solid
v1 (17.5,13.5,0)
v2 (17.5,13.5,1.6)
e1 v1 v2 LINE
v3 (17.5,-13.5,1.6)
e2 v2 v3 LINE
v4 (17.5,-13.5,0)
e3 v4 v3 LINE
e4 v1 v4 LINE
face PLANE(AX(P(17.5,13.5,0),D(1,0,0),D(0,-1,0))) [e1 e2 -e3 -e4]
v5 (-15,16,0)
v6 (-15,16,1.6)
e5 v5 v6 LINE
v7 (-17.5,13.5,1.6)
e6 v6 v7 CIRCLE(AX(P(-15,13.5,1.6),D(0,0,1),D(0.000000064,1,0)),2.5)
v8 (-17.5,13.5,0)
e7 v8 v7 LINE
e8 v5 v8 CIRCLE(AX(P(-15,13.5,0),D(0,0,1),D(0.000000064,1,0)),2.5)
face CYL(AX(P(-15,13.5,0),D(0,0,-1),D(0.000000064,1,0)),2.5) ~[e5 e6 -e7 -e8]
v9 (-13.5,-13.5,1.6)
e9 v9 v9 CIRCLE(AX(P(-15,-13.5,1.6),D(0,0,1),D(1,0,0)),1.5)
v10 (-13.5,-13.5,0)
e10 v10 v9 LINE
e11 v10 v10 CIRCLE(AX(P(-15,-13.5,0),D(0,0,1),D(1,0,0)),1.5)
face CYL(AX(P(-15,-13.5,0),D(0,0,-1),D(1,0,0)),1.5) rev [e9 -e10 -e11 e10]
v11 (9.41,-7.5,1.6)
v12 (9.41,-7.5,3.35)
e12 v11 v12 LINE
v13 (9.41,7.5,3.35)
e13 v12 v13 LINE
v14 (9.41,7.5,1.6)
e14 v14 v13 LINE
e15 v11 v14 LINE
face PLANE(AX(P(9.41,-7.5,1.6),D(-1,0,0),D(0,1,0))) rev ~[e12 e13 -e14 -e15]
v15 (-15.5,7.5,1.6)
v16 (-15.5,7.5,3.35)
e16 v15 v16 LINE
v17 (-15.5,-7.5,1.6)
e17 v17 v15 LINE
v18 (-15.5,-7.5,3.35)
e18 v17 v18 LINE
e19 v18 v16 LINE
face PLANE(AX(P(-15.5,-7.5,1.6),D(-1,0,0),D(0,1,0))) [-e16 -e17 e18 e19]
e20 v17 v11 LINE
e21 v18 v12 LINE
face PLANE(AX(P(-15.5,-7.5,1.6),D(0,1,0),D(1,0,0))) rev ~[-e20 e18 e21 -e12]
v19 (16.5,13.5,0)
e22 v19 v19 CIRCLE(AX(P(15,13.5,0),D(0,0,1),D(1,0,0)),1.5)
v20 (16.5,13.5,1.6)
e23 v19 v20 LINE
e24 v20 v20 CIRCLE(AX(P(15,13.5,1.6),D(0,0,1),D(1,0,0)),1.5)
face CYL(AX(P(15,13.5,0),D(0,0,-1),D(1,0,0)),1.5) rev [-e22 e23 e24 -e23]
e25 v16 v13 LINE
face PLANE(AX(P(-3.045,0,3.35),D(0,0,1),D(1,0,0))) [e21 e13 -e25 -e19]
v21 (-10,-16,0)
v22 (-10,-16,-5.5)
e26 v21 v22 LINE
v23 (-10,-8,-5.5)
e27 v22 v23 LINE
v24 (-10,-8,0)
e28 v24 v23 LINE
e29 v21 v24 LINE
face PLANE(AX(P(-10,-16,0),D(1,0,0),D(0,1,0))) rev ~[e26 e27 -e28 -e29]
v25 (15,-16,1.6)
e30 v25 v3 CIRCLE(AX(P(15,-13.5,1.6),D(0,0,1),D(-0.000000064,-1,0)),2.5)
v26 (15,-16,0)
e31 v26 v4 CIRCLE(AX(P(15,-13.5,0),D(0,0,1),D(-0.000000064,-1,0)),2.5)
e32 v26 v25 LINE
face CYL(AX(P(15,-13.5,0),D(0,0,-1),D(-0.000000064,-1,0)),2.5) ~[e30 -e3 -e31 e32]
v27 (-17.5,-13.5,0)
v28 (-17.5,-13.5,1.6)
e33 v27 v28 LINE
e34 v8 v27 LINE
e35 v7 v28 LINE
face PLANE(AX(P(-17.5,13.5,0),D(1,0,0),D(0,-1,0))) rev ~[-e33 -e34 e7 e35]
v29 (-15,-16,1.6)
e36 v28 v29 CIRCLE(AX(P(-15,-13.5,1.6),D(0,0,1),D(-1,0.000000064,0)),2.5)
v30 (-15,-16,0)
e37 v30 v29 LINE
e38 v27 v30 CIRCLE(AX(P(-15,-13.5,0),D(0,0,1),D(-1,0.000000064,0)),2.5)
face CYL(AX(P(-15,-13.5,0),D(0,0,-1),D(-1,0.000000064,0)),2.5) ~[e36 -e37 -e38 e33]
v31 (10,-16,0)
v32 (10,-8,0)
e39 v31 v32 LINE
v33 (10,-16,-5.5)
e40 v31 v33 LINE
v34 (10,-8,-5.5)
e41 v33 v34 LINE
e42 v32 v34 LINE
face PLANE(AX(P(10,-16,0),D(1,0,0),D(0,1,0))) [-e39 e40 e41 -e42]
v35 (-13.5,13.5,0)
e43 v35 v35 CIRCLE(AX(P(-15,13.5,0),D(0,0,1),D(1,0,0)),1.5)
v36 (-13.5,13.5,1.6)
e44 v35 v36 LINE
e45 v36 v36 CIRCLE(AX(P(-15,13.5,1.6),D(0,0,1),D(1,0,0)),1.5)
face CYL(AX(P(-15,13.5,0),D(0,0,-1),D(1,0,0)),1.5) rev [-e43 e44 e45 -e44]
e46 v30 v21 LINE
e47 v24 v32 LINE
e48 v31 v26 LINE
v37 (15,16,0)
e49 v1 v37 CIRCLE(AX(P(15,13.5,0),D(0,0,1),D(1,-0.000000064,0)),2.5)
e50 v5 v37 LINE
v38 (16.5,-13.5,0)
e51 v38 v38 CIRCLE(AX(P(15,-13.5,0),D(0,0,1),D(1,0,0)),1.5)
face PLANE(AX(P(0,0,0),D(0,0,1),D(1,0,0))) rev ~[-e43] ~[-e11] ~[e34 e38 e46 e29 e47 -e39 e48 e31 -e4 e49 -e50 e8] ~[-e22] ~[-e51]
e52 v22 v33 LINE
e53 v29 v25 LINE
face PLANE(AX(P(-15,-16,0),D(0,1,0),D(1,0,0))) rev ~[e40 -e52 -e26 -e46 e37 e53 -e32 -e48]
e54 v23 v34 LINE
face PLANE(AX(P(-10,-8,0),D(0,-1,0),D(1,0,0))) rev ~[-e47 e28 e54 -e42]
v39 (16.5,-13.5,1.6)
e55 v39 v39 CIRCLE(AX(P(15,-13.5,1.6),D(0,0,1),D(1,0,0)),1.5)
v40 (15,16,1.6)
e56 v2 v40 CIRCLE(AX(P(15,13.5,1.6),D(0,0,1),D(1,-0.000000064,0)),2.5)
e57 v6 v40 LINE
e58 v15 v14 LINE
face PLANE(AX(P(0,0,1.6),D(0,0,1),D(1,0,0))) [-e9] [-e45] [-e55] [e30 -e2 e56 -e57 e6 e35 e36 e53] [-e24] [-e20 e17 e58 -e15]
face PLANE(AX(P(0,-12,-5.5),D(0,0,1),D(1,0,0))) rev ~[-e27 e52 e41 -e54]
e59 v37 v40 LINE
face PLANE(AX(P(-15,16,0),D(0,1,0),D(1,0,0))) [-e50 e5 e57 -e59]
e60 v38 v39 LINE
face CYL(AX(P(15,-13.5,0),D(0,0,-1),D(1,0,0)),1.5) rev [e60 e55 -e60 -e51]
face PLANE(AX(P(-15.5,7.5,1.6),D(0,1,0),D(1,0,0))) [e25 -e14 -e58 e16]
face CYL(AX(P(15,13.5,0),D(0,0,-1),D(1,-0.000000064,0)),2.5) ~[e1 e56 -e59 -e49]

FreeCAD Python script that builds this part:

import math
import FreeCAD as App
import Part
import Sketcher

doc = App.newDocument("Part")
body = doc.addObject("PartDesign::Body", "Body")

# Sketch on XY plane
sketch1 = body.newObject("Sketcher::SketchObject", "Sketch")
sketch1.AttachmentSupport = (doc.getObject("XY_Plane"), [""])
sketch1.MapMode = "FlatFace"
sketch1.addGeometry([
    Part.ArcOfCircle(Part.Circle(App.Vector(-15, 13.5, 0), App.Vector(0, 0, 1), 2.5), math.radians(90), math.radians(180)),  # 0
    Part.LineSegment(App.Vector(-17.5, 13.5, 0), App.Vector(-17.5, -13.5, 0)),  # 1
    Part.ArcOfCircle(Part.Circle(App.Vector(-15, -13.5, 0), App.Vector(0, 0, 1), 2.5), math.radians(180), math.radians(270)),  # 2
    Part.LineSegment(App.Vector(-15, -16, 0), App.Vector(15, -16, 0)),  # 3
    Part.ArcOfCircle(Part.Circle(App.Vector(15, -13.5, 0), App.Vector(0, 0, 1), 2.5), math.radians(-90), math.radians(0)),  # 4
    Part.LineSegment(App.Vector(17.5, -13.5, 0), App.Vector(17.5, 13.5, 0)),  # 5
    Part.ArcOfCircle(Part.Circle(App.Vector(15, 13.5, 0), App.Vector(0, 0, 1), 2.5), math.radians(0), math.radians(90)),  # 6
    Part.LineSegment(App.Vector(15, 16, 0), App.Vector(-15, 16, 0)),  # 7
    Part.Circle(App.Vector(-15, -13.5, 0), App.Vector(0, 0, 1), 1.5),  # 8
    Part.Circle(App.Vector(15, -13.5, 0), App.Vector(0, 0, 1), 1.5),  # 9
    Part.Circle(App.Vector(-15, 13.5, 0), App.Vector(0, 0, 1), 1.5),  # 10
    Part.Circle(App.Vector(15, 13.5, 0), App.Vector(0, 0, 1), 1.5),  # 11
], False)
sketch1.addConstraint([
    Sketcher.Constraint("Tangent", 0, 2, 1, 1),
    Sketcher.Constraint("Tangent", 1, 2, 2, 1),
    Sketcher.Constraint("Tangent", 2, 2, 3, 1),
    Sketcher.Constraint("Tangent", 3, 2, 4, 1),
    Sketcher.Constraint("Tangent", 4, 2, 5, 1),
    Sketcher.Constraint("Tangent", 5, 2, 6, 1),
    Sketcher.Constraint("Tangent", 6, 2, 7, 1),
    Sketcher.Constraint("Tangent", 7, 2, 0, 1),
    Sketcher.Constraint("Vertical", 1),
    Sketcher.Constraint("Horizontal", 3),
    Sketcher.Constraint("Vertical", 5),
    Sketcher.Constraint("Horizontal", 7),
    Sketcher.Constraint("Coincident", 8, 3, 2, 3),
    Sketcher.Constraint("Coincident", 9, 3, 4, 3),
    Sketcher.Constraint("Coincident", 10, 3, 0, 3),
    Sketcher.Constraint("Coincident", 11, 3, 6, 3),
    Sketcher.Constraint("Equal", 0, 2),
    Sketcher.Constraint("Equal", 2, 4),
    Sketcher.Constraint("Equal", 4, 6),
    Sketcher.Constraint("Equal", 8, 9),
    Sketcher.Constraint("Equal", 9, 10),
    Sketcher.Constraint("Equal", 10, 11),
    Sketcher.Constraint("Symmetric", 0, 3, 4, 3, -1, 1),
    Sketcher.Constraint("Diameter", 8, 3.0),
    Sketcher.Constraint("Radius", 0, 2.5),
    Sketcher.Constraint("DistanceX", 3, 1, 3, 2, 30.0),
    Sketcher.Constraint("DistanceY", 1, 2, 1, 1, 27.0),
])
pad1 = body.newObject("PartDesign::Pad", "Pad")
pad1.Profile = sketch1
pad1.Length = 1.6

# Sketch on XY plane
sketch2 = body.newObject("Sketcher::SketchObject", "Sketch001")
sketch2.AttachmentSupport = (doc.getObject("XY_Plane"), [""])
sketch2.MapMode = "FlatFace"
sketch2.AttachmentOffset = App.Placement(App.Vector(0, 0, 1.6), App.Rotation())
sketch2.addGeometry([
    Part.LineSegment(App.Vector(-16, 8, 0), App.Vector(-16, -8, 0)),
    Part.LineSegment(App.Vector(-16, -8, 0), App.Vector(9, -8, 0)),
    Part.LineSegment(App.Vector(9, -8, 0), App.Vector(9, 8, 0)),
    Part.LineSegment(App.Vector(9, 8, 0), App.Vector(-16, 8, 0)),
], False)
sketch2.addConstraint([
    Sketcher.Constraint("Coincident", 0, 2, 1, 1),
    Sketcher.Constraint("Coincident", 1, 2, 2, 1),
    Sketcher.Constraint("Coincident", 2, 2, 3, 1),
    Sketcher.Constraint("Coincident", 3, 2, 0, 1),
    Sketcher.Constraint("Vertical", 0),
    Sketcher.Constraint("Horizontal", 1),
    Sketcher.Constraint("Vertical", 2),
    Sketcher.Constraint("Horizontal", 3),
    Sketcher.Constraint("DistanceY", 0, 2, 0, 1, 15.0),
    Sketcher.Constraint("DistanceX", 1, 1, 1, 2, 24.91),
    Sketcher.Constraint("DistanceX", 0, 2, -1, 1, 15.5),
    Sketcher.Constraint("DistanceY", 0, 2, -1, 1, 7.5),
])
pad2 = body.newObject("PartDesign::Pad", "Pad001")
pad2.Profile = sketch2
pad2.Length = 1.75

# Sketch on XY plane
sketch3 = body.newObject("Sketcher::SketchObject", "Sketch002")
sketch3.AttachmentSupport = (doc.getObject("XY_Plane"), [""])
sketch3.MapMode = "FlatFace"
sketch3.addGeometry([
    Part.LineSegment(App.Vector(-10, -8, 0), App.Vector(-10, -16, 0)),
    Part.LineSegment(App.Vector(-10, -16, 0), App.Vector(10, -16, 0)),
    Part.LineSegment(App.Vector(10, -16, 0), App.Vector(10, -8, 0)),
    Part.LineSegment(App.Vector(10, -8, 0), App.Vector(-10, -8, 0)),
], False)
sketch3.addConstraint([
    Sketcher.Constraint("Coincident", 0, 2, 1, 1),
    Sketcher.Constraint("Coincident", 1, 2, 2, 1),
    Sketcher.Constraint("Coincident", 2, 2, 3, 1),
    Sketcher.Constraint("Coincident", 3, 2, 0, 1),
    Sketcher.Constraint("Vertical", 0),
    Sketcher.Constraint("Horizontal", 1),
    Sketcher.Constraint("Vertical", 2),
    Sketcher.Constraint("Horizontal", 3),
    Sketcher.Constraint("DistanceX", 1, 1, 1, 2, 20.0),
    Sketcher.Constraint("DistanceY", 0, 2, 0, 1, 8.0),
    Sketcher.Constraint("DistanceX", 0, 2, -1, 1, 10.0),
    Sketcher.Constraint("DistanceY", 0, 2, -1, 1, 16.0),
])
pad3 = body.newObject("PartDesign::Pad", "Pad002")
pad3.Profile = sketch3
pad3.Length = 5.5
pad3.Reversed = True

doc.recompute()
